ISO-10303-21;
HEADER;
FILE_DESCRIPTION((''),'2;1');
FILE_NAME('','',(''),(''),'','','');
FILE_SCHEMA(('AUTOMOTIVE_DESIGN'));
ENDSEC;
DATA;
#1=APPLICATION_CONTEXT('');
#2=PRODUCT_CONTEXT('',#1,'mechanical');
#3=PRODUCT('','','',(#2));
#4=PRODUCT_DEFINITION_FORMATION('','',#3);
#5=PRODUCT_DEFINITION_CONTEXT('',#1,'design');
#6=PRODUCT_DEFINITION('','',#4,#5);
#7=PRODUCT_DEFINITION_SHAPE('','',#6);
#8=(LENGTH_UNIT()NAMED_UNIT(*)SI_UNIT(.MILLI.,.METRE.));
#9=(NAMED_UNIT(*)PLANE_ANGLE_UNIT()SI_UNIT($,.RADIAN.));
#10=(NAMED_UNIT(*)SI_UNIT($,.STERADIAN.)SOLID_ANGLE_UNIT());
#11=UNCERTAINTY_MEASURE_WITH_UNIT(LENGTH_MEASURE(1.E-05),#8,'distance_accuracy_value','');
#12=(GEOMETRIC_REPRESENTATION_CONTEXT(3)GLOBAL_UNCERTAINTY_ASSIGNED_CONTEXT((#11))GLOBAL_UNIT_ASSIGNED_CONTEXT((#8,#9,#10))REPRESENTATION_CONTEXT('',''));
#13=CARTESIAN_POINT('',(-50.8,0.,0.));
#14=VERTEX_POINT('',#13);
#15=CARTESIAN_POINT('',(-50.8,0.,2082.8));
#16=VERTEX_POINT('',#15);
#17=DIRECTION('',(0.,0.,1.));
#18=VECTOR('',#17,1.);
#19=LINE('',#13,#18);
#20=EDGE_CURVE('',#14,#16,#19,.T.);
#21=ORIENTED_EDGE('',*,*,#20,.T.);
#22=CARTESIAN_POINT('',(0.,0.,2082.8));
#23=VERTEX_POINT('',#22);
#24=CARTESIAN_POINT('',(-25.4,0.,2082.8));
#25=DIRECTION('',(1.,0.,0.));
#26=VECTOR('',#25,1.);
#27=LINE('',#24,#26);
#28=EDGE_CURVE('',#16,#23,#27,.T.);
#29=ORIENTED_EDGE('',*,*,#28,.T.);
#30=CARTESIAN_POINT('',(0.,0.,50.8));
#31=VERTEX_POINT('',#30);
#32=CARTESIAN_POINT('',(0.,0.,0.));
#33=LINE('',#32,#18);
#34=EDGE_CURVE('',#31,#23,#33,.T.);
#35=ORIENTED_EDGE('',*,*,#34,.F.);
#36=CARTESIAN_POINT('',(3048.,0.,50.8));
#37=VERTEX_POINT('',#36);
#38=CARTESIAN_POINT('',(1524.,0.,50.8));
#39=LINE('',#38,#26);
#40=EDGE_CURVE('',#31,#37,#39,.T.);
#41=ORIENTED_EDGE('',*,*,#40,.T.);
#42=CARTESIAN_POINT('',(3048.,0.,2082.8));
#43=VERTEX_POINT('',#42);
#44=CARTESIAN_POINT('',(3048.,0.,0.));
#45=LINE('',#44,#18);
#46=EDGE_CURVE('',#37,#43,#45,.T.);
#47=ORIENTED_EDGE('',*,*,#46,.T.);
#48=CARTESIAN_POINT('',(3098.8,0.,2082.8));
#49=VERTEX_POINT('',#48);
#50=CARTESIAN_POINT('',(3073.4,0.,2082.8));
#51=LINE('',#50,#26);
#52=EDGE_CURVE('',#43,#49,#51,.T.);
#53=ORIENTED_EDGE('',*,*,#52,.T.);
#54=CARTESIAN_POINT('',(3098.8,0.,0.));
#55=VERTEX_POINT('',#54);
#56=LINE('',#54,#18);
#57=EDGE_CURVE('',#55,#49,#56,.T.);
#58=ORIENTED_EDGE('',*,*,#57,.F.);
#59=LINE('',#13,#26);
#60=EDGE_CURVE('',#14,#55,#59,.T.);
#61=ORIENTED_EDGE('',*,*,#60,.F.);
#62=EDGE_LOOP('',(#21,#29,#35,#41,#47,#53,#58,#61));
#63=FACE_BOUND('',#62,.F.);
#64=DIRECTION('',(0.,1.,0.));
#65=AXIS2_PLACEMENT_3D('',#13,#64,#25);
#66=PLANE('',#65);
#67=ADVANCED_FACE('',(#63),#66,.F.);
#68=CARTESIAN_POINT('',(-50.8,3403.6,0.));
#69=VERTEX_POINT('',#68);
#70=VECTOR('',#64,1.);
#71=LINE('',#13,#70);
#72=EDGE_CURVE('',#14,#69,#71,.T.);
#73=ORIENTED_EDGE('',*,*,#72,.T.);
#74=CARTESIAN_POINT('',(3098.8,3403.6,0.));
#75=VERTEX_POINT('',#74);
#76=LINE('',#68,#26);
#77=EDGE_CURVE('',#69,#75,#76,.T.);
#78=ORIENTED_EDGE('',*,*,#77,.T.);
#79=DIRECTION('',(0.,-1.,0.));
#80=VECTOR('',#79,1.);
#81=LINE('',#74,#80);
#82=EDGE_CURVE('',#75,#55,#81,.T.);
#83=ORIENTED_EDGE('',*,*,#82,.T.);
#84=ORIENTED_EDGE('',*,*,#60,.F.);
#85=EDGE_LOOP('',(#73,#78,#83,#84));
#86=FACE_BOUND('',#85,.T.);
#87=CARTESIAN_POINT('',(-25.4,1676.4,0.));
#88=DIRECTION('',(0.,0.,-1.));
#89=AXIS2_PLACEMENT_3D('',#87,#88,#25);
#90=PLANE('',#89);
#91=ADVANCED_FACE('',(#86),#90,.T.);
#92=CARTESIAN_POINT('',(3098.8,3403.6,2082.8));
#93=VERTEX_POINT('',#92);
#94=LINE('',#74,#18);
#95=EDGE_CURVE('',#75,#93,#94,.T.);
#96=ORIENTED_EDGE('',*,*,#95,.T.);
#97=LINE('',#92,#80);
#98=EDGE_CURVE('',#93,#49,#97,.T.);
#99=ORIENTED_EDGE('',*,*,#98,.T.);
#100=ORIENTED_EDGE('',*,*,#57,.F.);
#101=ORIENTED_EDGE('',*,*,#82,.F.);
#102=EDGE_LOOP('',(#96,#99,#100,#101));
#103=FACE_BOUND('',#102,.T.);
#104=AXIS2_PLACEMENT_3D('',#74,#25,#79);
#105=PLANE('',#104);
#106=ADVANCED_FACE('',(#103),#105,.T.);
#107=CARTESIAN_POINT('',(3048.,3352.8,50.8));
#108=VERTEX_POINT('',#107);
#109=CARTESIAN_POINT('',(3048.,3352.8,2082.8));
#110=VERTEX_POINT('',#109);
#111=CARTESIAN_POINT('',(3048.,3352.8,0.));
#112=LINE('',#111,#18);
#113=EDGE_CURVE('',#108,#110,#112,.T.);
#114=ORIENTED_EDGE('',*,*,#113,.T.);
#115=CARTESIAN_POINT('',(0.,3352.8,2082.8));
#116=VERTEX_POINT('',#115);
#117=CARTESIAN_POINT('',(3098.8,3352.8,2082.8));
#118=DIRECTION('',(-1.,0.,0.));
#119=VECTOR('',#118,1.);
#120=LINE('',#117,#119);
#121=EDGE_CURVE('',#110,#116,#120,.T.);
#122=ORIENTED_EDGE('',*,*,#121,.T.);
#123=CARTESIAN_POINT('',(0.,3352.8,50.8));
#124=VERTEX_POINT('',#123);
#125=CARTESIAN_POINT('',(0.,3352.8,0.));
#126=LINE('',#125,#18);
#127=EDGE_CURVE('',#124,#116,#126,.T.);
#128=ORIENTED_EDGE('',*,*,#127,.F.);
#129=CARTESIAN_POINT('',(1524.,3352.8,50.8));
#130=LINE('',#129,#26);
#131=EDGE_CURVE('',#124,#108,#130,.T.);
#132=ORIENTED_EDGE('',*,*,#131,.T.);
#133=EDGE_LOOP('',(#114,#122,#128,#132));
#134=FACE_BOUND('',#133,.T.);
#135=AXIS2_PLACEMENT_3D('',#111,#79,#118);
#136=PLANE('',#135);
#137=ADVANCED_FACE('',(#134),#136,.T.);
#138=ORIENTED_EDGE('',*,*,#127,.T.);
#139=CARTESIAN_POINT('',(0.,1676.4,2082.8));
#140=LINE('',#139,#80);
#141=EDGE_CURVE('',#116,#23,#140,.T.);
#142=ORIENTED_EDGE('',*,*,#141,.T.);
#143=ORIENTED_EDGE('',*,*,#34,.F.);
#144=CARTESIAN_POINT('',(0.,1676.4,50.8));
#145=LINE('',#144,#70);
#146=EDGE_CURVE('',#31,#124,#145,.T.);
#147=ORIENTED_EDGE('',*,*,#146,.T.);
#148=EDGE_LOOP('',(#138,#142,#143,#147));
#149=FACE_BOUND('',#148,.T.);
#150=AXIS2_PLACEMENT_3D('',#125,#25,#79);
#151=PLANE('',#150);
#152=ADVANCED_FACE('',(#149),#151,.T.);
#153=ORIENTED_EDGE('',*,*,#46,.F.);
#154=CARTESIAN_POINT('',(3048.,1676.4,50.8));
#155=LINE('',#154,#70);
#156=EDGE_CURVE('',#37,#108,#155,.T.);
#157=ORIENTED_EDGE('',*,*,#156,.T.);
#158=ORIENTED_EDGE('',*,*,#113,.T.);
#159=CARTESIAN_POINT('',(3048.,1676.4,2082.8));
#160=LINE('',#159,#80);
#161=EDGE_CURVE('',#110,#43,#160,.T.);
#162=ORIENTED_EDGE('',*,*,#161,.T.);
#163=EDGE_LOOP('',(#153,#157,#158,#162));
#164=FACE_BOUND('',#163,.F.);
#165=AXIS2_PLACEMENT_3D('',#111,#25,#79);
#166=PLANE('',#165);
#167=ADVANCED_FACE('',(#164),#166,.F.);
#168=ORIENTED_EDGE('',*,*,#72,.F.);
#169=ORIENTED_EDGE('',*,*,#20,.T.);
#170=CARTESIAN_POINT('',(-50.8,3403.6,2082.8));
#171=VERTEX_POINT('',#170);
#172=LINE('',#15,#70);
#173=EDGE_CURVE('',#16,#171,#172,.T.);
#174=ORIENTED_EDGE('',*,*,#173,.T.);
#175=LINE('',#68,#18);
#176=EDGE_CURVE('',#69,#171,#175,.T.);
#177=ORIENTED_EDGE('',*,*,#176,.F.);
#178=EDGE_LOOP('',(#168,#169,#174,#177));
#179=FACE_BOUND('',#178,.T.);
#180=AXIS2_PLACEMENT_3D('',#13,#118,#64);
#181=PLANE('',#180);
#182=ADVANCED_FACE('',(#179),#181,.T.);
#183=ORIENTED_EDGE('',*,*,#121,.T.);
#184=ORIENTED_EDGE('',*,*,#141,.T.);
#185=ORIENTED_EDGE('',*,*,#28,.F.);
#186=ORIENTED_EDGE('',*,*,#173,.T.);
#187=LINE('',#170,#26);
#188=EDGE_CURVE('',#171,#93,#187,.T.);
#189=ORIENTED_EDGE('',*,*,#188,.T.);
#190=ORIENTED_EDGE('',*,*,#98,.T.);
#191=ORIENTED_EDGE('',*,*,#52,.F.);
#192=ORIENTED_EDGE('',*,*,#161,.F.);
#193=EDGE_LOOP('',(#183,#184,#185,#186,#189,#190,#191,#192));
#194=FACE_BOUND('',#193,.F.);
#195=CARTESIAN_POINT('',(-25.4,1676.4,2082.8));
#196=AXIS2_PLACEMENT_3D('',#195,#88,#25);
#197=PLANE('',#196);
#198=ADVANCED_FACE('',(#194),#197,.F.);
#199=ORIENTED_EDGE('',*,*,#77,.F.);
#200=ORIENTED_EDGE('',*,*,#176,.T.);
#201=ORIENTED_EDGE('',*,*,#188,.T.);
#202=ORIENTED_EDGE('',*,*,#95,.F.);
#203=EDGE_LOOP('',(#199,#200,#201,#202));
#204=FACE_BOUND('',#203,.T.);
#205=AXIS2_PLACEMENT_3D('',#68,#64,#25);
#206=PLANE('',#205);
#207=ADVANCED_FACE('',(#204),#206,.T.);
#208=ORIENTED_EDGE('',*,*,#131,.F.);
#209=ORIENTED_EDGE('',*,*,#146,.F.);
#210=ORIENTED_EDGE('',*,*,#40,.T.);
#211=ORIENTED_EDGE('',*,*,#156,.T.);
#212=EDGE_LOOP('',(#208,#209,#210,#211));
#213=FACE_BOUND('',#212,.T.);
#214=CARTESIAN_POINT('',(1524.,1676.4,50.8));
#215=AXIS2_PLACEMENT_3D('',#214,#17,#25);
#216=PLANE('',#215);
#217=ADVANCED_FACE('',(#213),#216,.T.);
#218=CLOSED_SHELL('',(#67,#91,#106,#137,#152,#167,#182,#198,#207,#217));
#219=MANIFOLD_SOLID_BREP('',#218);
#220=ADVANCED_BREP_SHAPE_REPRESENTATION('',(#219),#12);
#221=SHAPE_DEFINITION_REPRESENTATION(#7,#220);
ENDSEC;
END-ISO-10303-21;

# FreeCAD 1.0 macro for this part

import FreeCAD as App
import Part
import Sketcher

V = App.Vector
Q = App.Units.Quantity


def add_polygon(sketch, points):
    """Adds a closed chain of lines whose ends are joined by coincident constraints."""
    first, n = sketch.GeometryCount, len(points)
    for a, b in zip(points, points[1:] + points[:1]):
        sketch.addGeometry(Part.LineSegment(App.Vector(*a, 0), App.Vector(*b, 0)), False)
    for i in range(n):
        sketch.addConstraint(Sketcher.Constraint("Coincident", first + i, 2, first + (i + 1) % n, 1))

doc = App.newDocument("Part")
body = doc.addObject("PartDesign::Body", "Body")

sketch1 = body.newObject("Sketcher::SketchObject", "Sketch")
sketch1.AttachmentSupport = (doc.getObject("XY_Plane"), [""])
sketch1.MapMode = "FlatFace"
add_polygon(sketch1, [(0, 3353), (0, 0), (3048, 0), (3048, 3353)])
sketch1.addConstraint(Sketcher.Constraint("Vertical", 0))
sketch1.addConstraint(Sketcher.Constraint("Horizontal", 1))
sketch1.addConstraint(Sketcher.Constraint("Vertical", 2))
sketch1.addConstraint(Sketcher.Constraint("Horizontal", 3))
sketch1.addConstraint(Sketcher.Constraint("Coincident", 0, 2, -1, 1))
sketch1.addConstraint(Sketcher.Constraint("DistanceX", 1, 1, 1, 2, Q("120 in")))
sketch1.addConstraint(Sketcher.Constraint("DistanceY", 0, 2, 0, 1, Q("132 in")))
pad1 = body.newObject("PartDesign::Pad", "Pad")
pad1.Profile = sketch1
pad1.Length = Q("2 in")

sketch2 = body.newObject("Sketcher::SketchObject", "Sketch001")
sketch2.AttachmentSupport = (doc.getObject("XY_Plane"), [""])
sketch2.MapMode = "FlatFace"
add_polygon(sketch2, [(-51, 0), (-51, 3404), (3099, 3404), (3099, 0), (3048, 0), (3048, 3353), (0, 3353), (0, 0)])
sketch2.addConstraint(Sketcher.Constraint("Vertical", 0))
sketch2.addConstraint(Sketcher.Constraint("Horizontal", 1))
sketch2.addConstraint(Sketcher.Constraint("Vertical", 2))
sketch2.addConstraint(Sketcher.Constraint("Horizontal", 3))
sketch2.addConstraint(Sketcher.Constraint("Vertical", 4))
sketch2.addConstraint(Sketcher.Constraint("Horizontal", 5))
sketch2.addConstraint(Sketcher.Constraint("Vertical", 6))
sketch2.addConstraint(Sketcher.Constraint("Horizontal", 7))
sketch2.addConstraint(Sketcher.Constraint("Coincident", 6, 2, -1, 1))
sketch2.addConstraint(Sketcher.Constraint("PointOnObject", 2, 2, -1))
sketch2.addConstraint(Sketcher.Constraint("Equal", 3, 7))
sketch2.addConstraint(Sketcher.Constraint("DistanceX", 1, 1, 1, 2, Q("124 in")))
sketch2.addConstraint(Sketcher.Constraint("DistanceX", 3, 2, 3, 1, Q("2 in")))
sketch2.addConstraint(Sketcher.Constraint("DistanceY", 0, 1, 0, 2, Q("134 in")))
sketch2.addConstraint(Sketcher.Constraint("DistanceY", 4, 1, 4, 2, Q("132 in")))
pad2 = body.newObject("PartDesign::Pad", "Pad001")
pad2.Profile = sketch2
pad2.Length = Q("82 in")

doc.recompute()
